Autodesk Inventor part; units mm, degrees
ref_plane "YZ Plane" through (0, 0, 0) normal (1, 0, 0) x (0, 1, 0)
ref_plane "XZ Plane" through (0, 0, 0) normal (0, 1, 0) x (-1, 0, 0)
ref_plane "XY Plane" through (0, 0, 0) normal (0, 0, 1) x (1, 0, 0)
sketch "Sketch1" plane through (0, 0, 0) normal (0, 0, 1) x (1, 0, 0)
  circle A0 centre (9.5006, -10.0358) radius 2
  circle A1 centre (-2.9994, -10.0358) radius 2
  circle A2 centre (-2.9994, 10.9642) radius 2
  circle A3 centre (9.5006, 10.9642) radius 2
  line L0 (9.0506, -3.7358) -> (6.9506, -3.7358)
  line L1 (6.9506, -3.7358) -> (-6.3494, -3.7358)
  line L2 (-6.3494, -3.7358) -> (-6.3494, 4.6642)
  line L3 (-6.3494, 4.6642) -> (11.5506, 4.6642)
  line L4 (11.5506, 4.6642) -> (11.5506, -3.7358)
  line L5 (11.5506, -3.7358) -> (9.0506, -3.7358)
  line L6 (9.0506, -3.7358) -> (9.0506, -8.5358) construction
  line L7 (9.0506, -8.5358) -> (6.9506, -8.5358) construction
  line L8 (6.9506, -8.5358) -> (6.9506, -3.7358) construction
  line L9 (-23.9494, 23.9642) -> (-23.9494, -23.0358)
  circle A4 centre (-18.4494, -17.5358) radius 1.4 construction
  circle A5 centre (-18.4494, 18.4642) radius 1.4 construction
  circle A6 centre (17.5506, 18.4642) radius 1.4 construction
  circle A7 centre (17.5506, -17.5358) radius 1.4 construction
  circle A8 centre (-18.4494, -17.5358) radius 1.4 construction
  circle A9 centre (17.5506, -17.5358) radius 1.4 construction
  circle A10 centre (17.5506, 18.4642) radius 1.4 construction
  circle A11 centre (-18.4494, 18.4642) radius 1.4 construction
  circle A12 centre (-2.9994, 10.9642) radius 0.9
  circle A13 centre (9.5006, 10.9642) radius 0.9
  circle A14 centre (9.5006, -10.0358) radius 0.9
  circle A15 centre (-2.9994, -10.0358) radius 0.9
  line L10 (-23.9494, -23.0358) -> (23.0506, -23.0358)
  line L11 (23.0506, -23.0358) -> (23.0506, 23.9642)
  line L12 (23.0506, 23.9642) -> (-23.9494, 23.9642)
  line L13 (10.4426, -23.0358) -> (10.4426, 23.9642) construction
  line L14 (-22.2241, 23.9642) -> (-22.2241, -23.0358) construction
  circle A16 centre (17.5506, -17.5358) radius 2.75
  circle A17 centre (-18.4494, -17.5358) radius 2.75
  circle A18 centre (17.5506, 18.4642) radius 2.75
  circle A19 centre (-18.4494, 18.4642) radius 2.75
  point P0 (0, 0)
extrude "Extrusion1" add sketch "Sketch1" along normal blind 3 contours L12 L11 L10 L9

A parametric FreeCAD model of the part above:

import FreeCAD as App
import Part
import Sketcher
from FreeCAD import Vector
Q = App.Units.Quantity


def add_polygon(sketch, points):
    """Adds a closed chain of lines whose ends are joined by coincident constraints."""
    first, n = sketch.GeometryCount, len(points)
    for a, b in zip(points, points[1:] + points[:1]):
        sketch.addGeometry(Part.LineSegment(App.Vector(*a, 0), App.Vector(*b, 0)), False)
    for i in range(n):
        sketch.addConstraint(Sketcher.Constraint("Coincident", first + i, 2, first + (i + 1) % n, 1))

doc = App.newDocument("Part")
params = doc.addObject("Spreadsheet::Sheet", "Params")
for row, (alias, value) in enumerate([
    ("sketch1_diameter", "4 mm"),
    ("sketch1_diameter2", "5.5 mm"),
    ("sketch1_width", "47 mm"),
    ("sketch1_width2", "17.9 mm"),
    ("sketch1_height", "8.4 mm"),
    ("pad1_length", "3 mm"),
], start=1):
    params.set(f"A{row}", alias)
    params.set(f"B{row}", "=" + value)
    params.setAlias(f"B{row}", alias)

body = doc.addObject("PartDesign::Body", "Body")

sketch1 = body.newObject("Sketcher::SketchObject", "Sketch")
sketch1.AttachmentSupport = (doc.getObject("XY_Plane"), [""])
sketch1.MapMode = "FlatFace"
add_polygon(sketch1, [(23.0506, 23.9642), (-23.9494, 23.9642), (-23.9494, -23.0358), (23.0506, -23.0358)])
sketch1.addGeometry(Part.Circle(Vector(-18.4494, -17.5358, 0), Vector(0, 0, 1), 2.75), False)
sketch1.addGeometry(Part.Circle(Vector(-2.9994, -10.0358, 0), Vector(0, 0, 1), 2), False)
sketch1.addGeometry(Part.Circle(Vector(17.5506, -17.5358, 0), Vector(0, 0, 1), 2.75), False)
sketch1.addGeometry(Part.Circle(Vector(9.5006, -10.0358, 0), Vector(0, 0, 1), 2), False)
sketch1.addGeometry(Part.Circle(Vector(-2.9994, 10.9642, 0), Vector(0, 0, 1), 2), False)
sketch1.addGeometry(Part.Circle(Vector(-18.4494, 18.4642, 0), Vector(0, 0, 1), 2.75), False)
add_polygon(sketch1, [(11.5506, -3.7358), (-6.3494, -3.7358), (-6.3494, 4.6642), (11.5506, 4.6642)])
sketch1.addGeometry(Part.Circle(Vector(9.5006, 10.9642, 0), Vector(0, 0, 1), 2), False)
sketch1.addGeometry(Part.Circle(Vector(17.5506, 18.4642, 0), Vector(0, 0, 1), 2.75), False)
sketch1.addConstraint([
    Sketcher.Constraint("Horizontal", 0),
    Sketcher.Constraint("Vertical", 1),
    Sketcher.Constraint("Horizontal", 2),
    Sketcher.Constraint("Vertical", 3),
    Sketcher.Constraint("Horizontal", 10),
    Sketcher.Constraint("Vertical", 11),
    Sketcher.Constraint("Horizontal", 12),
    Sketcher.Constraint("Vertical", 13),
    Sketcher.Constraint("Equal", 4, 6),
    Sketcher.Constraint("Equal", 5, 7),
    Sketcher.Constraint("Equal", 7, 8),
    Sketcher.Constraint("Equal", 6, 9),
    Sketcher.Constraint("Equal", 8, 14),
    Sketcher.Constraint("Equal", 9, 15),
    Sketcher.Constraint("Horizontal", 4, 3, 6, 3),
    Sketcher.Constraint("Horizontal", 5, 3, 7, 3),
    Sketcher.Constraint("Horizontal", 8, 3, 14, 3),
    Sketcher.Constraint("Horizontal", 9, 3, 15, 3),
    Sketcher.Constraint("Vertical", 5, 3, 8, 3),
    Sketcher.Constraint("Vertical", 4, 3, 9, 3),
    Sketcher.Constraint("Vertical", 7, 3, 14, 3),
    Sketcher.Constraint("Vertical", 6, 3, 15, 3),
    Sketcher.Constraint("Equal", 2, 1),
    Sketcher.Constraint("Diameter", 5, Q("4 mm")),
    Sketcher.Constraint("Diameter", 4, Q("5.5 mm")),
    Sketcher.Constraint("DistanceX", 0, 2, 0, 1, Q("47 mm")),
    Sketcher.Constraint("DistanceX", 10, 2, 10, 1, Q("17.9 mm")),
    Sketcher.Constraint("DistanceY", 11, 1, 11, 2, Q("8.4 mm")),
    Sketcher.Constraint("DistanceX", 4, 3, 6, 3, Q("36 mm")),
    Sketcher.Constraint("DistanceY", 5, 3, 8, 3, Q("21 mm")),
    Sketcher.Constraint("DistanceY", 4, 3, 9, 3, Q("36 mm")),
    Sketcher.Constraint("DistanceY", 8, 3, 0, 2, Q("13 mm")),
    Sketcher.Constraint("DistanceX", 12, 2, 15, 3, Q("6 mm")),
    Sketcher.Constraint("DistanceY", 4, 3, 5, 3, Q("7.5 mm")),
    Sketcher.Constraint("DistanceX", 5, 3, 7, 3, Q("12.5 mm")),
    Sketcher.Constraint("DistanceX", 0, 2, 9, 3, Q("5.5 mm")),
    Sketcher.Constraint("DistanceY", 5, 3, 10, 2, Q("6.3 mm")),
    Sketcher.Constraint("DistanceX", 4, 3, 5, 3, Q("15.45 mm")),
    Sketcher.Constraint("DistanceX", 4, 3, -1, 1, Q("18.4494 mm")),
    Sketcher.Constraint("DistanceY", 4, 3, -1, 1, Q("17.5358 mm")),
])
sketch1.setExpression("Constraints[31]", "Params.sketch1_diameter")
sketch1.setExpression("Constraints[32]", "Params.sketch1_diameter2")
sketch1.setExpression("Constraints[33]", "Params.sketch1_width")
sketch1.setExpression("Constraints[34]", "Params.sketch1_width2")
sketch1.setExpression("Constraints[35]", "Params.sketch1_height")
pad1 = body.newObject("PartDesign::Pad", "Pad")
pad1.Profile = sketch1
pad1.setExpression("Length", "Params.pad1_length")

doc.recompute()
